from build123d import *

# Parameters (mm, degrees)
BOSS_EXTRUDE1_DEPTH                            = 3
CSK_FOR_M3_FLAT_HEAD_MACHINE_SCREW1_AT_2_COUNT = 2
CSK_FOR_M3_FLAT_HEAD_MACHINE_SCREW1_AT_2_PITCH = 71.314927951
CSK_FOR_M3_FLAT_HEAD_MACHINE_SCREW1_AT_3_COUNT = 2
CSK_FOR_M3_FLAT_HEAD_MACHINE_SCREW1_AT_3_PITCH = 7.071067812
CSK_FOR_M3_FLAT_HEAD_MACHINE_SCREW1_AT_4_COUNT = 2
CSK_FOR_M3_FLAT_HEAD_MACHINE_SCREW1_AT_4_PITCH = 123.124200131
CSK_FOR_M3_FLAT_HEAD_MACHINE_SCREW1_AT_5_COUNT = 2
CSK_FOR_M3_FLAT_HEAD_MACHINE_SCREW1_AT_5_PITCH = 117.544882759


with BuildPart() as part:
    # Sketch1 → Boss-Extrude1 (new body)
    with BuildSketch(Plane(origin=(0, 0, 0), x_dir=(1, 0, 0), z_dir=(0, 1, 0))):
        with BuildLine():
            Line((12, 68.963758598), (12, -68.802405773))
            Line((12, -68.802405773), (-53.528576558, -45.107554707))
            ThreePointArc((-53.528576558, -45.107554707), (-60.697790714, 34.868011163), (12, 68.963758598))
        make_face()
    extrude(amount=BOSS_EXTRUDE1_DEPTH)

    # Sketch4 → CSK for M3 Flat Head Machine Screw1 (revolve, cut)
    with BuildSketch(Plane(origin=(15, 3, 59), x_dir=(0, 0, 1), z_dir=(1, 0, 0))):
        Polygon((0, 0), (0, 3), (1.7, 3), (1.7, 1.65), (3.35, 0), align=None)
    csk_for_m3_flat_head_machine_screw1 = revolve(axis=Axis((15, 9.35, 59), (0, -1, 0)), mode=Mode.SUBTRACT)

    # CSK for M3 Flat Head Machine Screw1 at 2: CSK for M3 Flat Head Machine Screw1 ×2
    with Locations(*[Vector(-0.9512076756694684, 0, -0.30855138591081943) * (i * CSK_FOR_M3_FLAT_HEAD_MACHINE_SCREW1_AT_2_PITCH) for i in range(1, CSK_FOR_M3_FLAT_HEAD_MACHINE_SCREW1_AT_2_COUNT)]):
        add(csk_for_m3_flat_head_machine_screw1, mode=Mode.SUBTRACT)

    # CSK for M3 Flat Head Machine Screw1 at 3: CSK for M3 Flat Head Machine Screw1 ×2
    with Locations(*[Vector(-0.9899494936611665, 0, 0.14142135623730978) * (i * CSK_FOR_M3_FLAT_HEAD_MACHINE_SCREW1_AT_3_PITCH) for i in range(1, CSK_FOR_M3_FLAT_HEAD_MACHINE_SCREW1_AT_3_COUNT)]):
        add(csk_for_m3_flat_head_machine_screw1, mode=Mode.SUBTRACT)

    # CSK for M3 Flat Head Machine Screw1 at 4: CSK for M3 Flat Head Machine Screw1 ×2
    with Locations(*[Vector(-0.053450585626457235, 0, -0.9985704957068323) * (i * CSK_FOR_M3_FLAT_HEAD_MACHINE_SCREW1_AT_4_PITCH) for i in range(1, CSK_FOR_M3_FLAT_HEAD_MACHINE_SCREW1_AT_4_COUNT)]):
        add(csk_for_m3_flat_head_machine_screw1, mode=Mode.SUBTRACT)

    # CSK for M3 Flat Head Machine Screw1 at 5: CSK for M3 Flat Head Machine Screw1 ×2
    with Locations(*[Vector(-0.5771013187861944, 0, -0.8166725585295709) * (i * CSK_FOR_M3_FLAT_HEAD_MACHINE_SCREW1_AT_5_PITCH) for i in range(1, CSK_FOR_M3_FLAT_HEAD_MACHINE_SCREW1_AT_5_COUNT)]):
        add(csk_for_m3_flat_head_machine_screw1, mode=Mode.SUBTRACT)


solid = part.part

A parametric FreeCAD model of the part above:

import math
import FreeCAD as App
import Part
import Sketcher
from FreeCAD import Vector
Q = App.Units.Quantity


def add_polygon(sketch, points):
    """Adds a closed chain of lines whose ends are joined by coincident constraints."""
    first, n = sketch.GeometryCount, len(points)
    for a, b in zip(points, points[1:] + points[:1]):
        sketch.addGeometry(Part.LineSegment(App.Vector(*a, 0), App.Vector(*b, 0)), False)
    for i in range(n):
        sketch.addConstraint(Sketcher.Constraint("Coincident", first + i, 2, first + (i + 1) % n, 1))

doc = App.newDocument("Part")
params = doc.addObject("Spreadsheet::Sheet", "Params")
for row, (alias, value) in enumerate([
    ("sketch1_radius", "70 mm"),
    ("pad1_length", "3 mm"),
    ("sketch2_width", "3 mm"),
    ("sketch2_height", "1.7 mm"),
    ("sketch2_width2", "1.35 mm"),
    ("groove_angle", "360 deg"),
    ("linearpattern_pitch", "71.314928 mm"),
    ("linearpattern2_pitch", "7.071068 mm"),
    ("linearpattern3_pitch", "123.1242 mm"),
    ("linearpattern4_pitch", "117.544883 mm"),
], start=1):
    params.set(f"A{row}", alias)
    params.set(f"B{row}", "=" + value)
    params.setAlias(f"B{row}", alias)

body = doc.addObject("PartDesign::Body", "Body")

sketch1 = body.newObject("Sketcher::SketchObject", "Sketch")
sketch1.AttachmentSupport = (doc.getObject("XZ_Plane"), [""])
sketch1.MapMode = "FlatFace"
sketch1.addGeometry(Part.LineSegment(Vector(12, 68.802406, 0), Vector(12, -68.963759, 0)), False)
sketch1.addGeometry(Part.ArcOfCircle(Part.Circle(Vector(0, 0, 0), Vector(0, 0, 1), 70), math.radians(139.879772), math.radians(279.87089)), False)
sketch1.addGeometry(Part.LineSegment(Vector(-53.528577, 45.107555, 0), Vector(12, 68.802406, 0)), False)
sketch1.addConstraint(Sketcher.Constraint("Coincident", 0, 2, 1, 2))
sketch1.addConstraint(Sketcher.Constraint("Coincident", 1, 1, 2, 1))
sketch1.addConstraint(Sketcher.Constraint("Coincident", 2, 2, 0, 1))
sketch1.addConstraint(Sketcher.Constraint("Vertical", 0))
sketch1.addConstraint(Sketcher.Constraint("Coincident", 1, 3, -1, 1))
sketch1.addConstraint(Sketcher.Constraint("Radius", 1, 70.0))
sketch1.addConstraint(Sketcher.Constraint("DistanceX", -1, 1, 0, 2, 12.0))
sketch1.addConstraint(Sketcher.Constraint("Distance", 2, 69.68099))
sketch1.addConstraint(Sketcher.Constraint("DistanceY", 0, 2, 0, 1, 137.766164))
sketch1.setExpression("Constraints[5]", "Params.sketch1_radius")
pad1 = body.newObject("PartDesign::Pad", "Pad")
pad1.Profile = sketch1
pad1.setExpression("Length", "Params.pad1_length")
pad1.Reversed = True

sketch2 = body.newObject("Sketcher::SketchObject", "Sketch001")
sketch2.AttachmentSupport = (doc.getObject("YZ_Plane"), [""])
sketch2.MapMode = "FlatFace"
sketch2.AttachmentOffset = App.Placement(Vector(0, 0, 15), App.Rotation())
add_polygon(sketch2, [(0, 59), (3, 59), (3, 62.35), (1.35, 60.7), (0, 60.7)])
sketch2.addGeometry(Part.LineSegment(Vector(3, 59, 0), Vector(0, 59, 0)), True)
sketch2.addConstraint(Sketcher.Constraint("Horizontal", 0))
sketch2.addConstraint(Sketcher.Constraint("Vertical", 1))
sketch2.addConstraint(Sketcher.Constraint("Horizontal", 3))
sketch2.addConstraint(Sketcher.Constraint("Vertical", 4))
sketch2.addConstraint(Sketcher.Constraint("Horizontal", 5))
sketch2.addConstraint(Sketcher.Constraint("Coincident", 5, 1, 0, 2))
sketch2.addConstraint(Sketcher.Constraint("PointOnObject", 3, 2, -2))
sketch2.addConstraint(Sketcher.Constraint("PointOnObject", 5, 2, -2))
sketch2.addConstraint(Sketcher.Constraint("DistanceX", 0, 1, 0, 2, 3.0))
sketch2.addConstraint(Sketcher.Constraint("Angle", 2, Q("-135 deg")))
sketch2.addConstraint(Sketcher.Constraint("DistanceY", 4, 2, 4, 1, 1.7))
sketch2.addConstraint(Sketcher.Constraint("DistanceY", -1, 1, 0, 2, 59.0))
sketch2.addConstraint(Sketcher.Constraint("DistanceX", 3, 2, 3, 1, 1.35))
sketch2.setExpression("Constraints[13]", "Params.sketch2_width")
sketch2.setExpression("Constraints[15]", "Params.sketch2_height")
sketch2.setExpression("Constraints[17]", "Params.sketch2_width2")
groove = body.newObject("PartDesign::Groove", "Groove")
groove.Profile = sketch2
groove.ReferenceAxis = (sketch2, ["Axis0"])
groove.setExpression("Angle", "Params.groove_angle")
doc.recompute()

datumline = body.newObject("PartDesign::Line", "DatumLine")
datumline.Placement = App.Placement(Vector(0, 0, 0), App.Rotation(Vector(0, 0, 1), Vector(-0.951207676, 0, -0.308551386)))
linearpattern = body.newObject("PartDesign::LinearPattern", "LinearPattern")
linearpattern.Originals = [groove]
linearpattern.Direction = (datumline, [""])
linearpattern.Mode = "offset"
linearpattern.setExpression("Offset", "Params.linearpattern_pitch")
linearpattern.Occurrences = 2
body.Tip = linearpattern
doc.recompute()

datumline2 = body.newObject("PartDesign::Line", "DatumLine001")
datumline2.Placement = App.Placement(Vector(0, 0, 0), App.Rotation(Vector(0, 0, 1), Vector(-0.989949494, 0, 0.141421356)))
linearpattern2 = body.newObject("PartDesign::LinearPattern", "LinearPattern001")
linearpattern2.Originals = [groove]
linearpattern2.Direction = (datumline2, [""])
linearpattern2.Mode = "offset"
linearpattern2.setExpression("Offset", "Params.linearpattern2_pitch")
linearpattern2.Occurrences = 2
body.Tip = linearpattern2
doc.recompute()

datumline3 = body.newObject("PartDesign::Line", "DatumLine002")
datumline3.Placement = App.Placement(Vector(0, 0, 0), App.Rotation(Vector(0, 0, 1), Vector(-0.053450586, 0, -0.998570496)))
linearpattern3 = body.newObject("PartDesign::LinearPattern", "LinearPattern002")
linearpattern3.Originals = [groove]
linearpattern3.Direction = (datumline3, [""])
linearpattern3.Mode = "offset"
linearpattern3.setExpression("Offset", "Params.linearpattern3_pitch")
linearpattern3.Occurrences = 2
body.Tip = linearpattern3
doc.recompute()

datumline4 = body.newObject("PartDesign::Line", "DatumLine003")
datumline4.Placement = App.Placement(Vector(0, 0, 0), App.Rotation(Vector(0, 0, 1), Vector(-0.577101319, 0, -0.816672559)))
linearpattern4 = body.newObject("PartDesign::LinearPattern", "LinearPattern003")
linearpattern4.Originals = [groove]
linearpattern4.Direction = (datumline4, [""])
linearpattern4.Mode = "offset"
linearpattern4.setExpression("Offset", "Params.linearpattern4_pitch")
linearpattern4.Occurrences = 2
body.Tip = linearpattern4

doc.recompute()
